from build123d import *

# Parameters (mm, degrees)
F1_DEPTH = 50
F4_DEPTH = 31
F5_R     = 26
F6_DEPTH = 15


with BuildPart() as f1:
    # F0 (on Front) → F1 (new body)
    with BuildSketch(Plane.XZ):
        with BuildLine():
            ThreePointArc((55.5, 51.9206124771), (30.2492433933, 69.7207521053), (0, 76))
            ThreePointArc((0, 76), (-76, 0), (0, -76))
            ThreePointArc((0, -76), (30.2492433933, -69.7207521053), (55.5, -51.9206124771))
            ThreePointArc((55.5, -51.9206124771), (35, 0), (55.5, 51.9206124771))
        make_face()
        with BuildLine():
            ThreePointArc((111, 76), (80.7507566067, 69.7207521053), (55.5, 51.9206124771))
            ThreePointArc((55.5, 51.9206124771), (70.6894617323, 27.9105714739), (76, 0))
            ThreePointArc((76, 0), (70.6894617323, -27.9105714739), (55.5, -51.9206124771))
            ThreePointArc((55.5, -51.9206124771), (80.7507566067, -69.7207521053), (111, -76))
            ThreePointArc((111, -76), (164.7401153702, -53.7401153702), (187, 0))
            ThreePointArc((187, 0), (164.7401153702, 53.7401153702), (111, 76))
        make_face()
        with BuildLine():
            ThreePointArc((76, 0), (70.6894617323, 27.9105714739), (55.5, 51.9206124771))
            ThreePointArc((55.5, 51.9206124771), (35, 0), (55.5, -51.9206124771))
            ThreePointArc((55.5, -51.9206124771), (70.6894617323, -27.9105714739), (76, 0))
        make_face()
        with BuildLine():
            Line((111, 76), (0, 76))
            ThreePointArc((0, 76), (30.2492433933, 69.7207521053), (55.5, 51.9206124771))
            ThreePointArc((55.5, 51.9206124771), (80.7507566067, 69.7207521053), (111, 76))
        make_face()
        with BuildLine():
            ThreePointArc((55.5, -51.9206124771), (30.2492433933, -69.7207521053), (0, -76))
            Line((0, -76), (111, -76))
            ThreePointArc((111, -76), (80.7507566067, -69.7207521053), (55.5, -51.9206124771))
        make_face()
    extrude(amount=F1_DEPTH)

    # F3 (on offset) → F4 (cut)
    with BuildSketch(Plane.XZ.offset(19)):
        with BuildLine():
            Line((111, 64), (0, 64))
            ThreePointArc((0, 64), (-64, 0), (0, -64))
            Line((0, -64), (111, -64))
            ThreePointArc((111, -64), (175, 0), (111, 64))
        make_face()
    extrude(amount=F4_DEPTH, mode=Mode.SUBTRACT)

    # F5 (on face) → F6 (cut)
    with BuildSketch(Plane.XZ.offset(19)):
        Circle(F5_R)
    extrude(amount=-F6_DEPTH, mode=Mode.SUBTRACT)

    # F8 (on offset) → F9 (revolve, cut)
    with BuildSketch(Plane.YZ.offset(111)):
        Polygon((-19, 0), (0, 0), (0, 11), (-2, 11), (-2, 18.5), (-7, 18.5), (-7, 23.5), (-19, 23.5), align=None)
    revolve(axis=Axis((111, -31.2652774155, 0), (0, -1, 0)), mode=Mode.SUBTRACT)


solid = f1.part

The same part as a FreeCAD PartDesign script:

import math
import FreeCAD as App
import Part
import Sketcher

V = App.Vector
Q = App.Units.Quantity


def add_polygon(sketch, points):
    """Adds a closed chain of lines whose ends are joined by coincident constraints."""
    first, n = sketch.GeometryCount, len(points)
    for a, b in zip(points, points[1:] + points[:1]):
        sketch.addGeometry(Part.LineSegment(App.Vector(*a, 0), App.Vector(*b, 0)), False)
    for i in range(n):
        sketch.addConstraint(Sketcher.Constraint("Coincident", first + i, 2, first + (i + 1) % n, 1))

doc = App.newDocument("Part")
body = doc.addObject("PartDesign::Body", "Body")

# Sketch on XZ plane
sketch1 = doc.addObject("Sketcher::SketchObject", "Sketch")
body.addObject(sketch1)
sketch1.AttachmentSupport = (doc.XZ_Plane, [""])
sketch1.MapMode = "FlatFace"
sketch1.addGeometry([
    Part.ArcOfCircle(Part.Circle(V(0, 0, 0), V(0, 0, 1), 76), math.radians(90), math.radians(270)),  # 0
    Part.LineSegment(V(0, -76, 0), V(111, -76, 0)),  # 1
    Part.ArcOfCircle(Part.Circle(V(111, 0, 0), V(0, 0, 1), 76), math.radians(-90), math.radians(0)),  # 2
    Part.ArcOfCircle(Part.Circle(V(111, 0, 0), V(0, 0, 1), 76), math.radians(0), math.radians(90)),  # 3
    Part.LineSegment(V(111, 76, 0), V(0, 76, 0)),  # 4
], False)
sketch1.addConstraint([
    Sketcher.Constraint("Tangent", 0, 2, 1, 1),
    Sketcher.Constraint("Tangent", 1, 2, 2, 1),
    Sketcher.Constraint("Tangent", 2, 2, 3, 1),
    Sketcher.Constraint("Tangent", 3, 2, 4, 1),
    Sketcher.Constraint("Tangent", 4, 2, 0, 1),
    Sketcher.Constraint("Horizontal", 1),
    Sketcher.Constraint("Horizontal", 4),
    Sketcher.Constraint("Coincident", 0, 3, -1, 1),
    Sketcher.Constraint("Equal", 0, 2),
    Sketcher.Constraint("PointOnObject", 2, 2, -1),
    Sketcher.Constraint("Radius", 0, Q("76 mm")),
    Sketcher.Constraint("DistanceX", 1, 1, 1, 2, Q("111 mm")),
])
pad1 = doc.addObject("PartDesign::Pad", "Pad")
body.addObject(pad1)
pad1.Profile = sketch1
pad1.Length = 50

# Sketch on XZ plane
sketch2 = doc.addObject("Sketcher::SketchObject", "Sketch001")
body.addObject(sketch2)
sketch2.AttachmentSupport = (doc.XZ_Plane, [""])
sketch2.MapMode = "FlatFace"
sketch2.AttachmentOffset = App.Placement(V(0, 0, 19), App.Rotation())
sketch2.addGeometry([
    Part.LineSegment(V(111, 64, 0), V(0, 64, 0)),
    Part.ArcOfCircle(Part.Circle(V(0, 0, 0), V(0, 0, 1), 64), math.radians(90), math.radians(270)),
    Part.LineSegment(V(0, -64, 0), V(111, -64, 0)),
    Part.ArcOfCircle(Part.Circle(V(111, 0, 0), V(0, 0, 1), 64), math.radians(-90), math.radians(90)),
], False)
sketch2.addConstraint([
    Sketcher.Constraint("Tangent", 0, 2, 1, 1),
    Sketcher.Constraint("Tangent", 1, 2, 2, 1),
    Sketcher.Constraint("Tangent", 2, 2, 3, 1),
    Sketcher.Constraint("Tangent", 3, 2, 0, 1),
    Sketcher.Constraint("Horizontal", 0),
    Sketcher.Constraint("Horizontal", 2),
    Sketcher.Constraint("Coincident", 1, 3, -1, 1),
    Sketcher.Constraint("Radius", 1, Q("64 mm")),
    Sketcher.Constraint("DistanceX", 0, 2, 0, 1, Q("111 mm")),
])
pocket1 = doc.addObject("PartDesign::Pocket", "Pocket")
body.addObject(pocket1)
pocket1.Profile = sketch2
pocket1.Length = 31
pocket1.Reversed = True

# Sketch on XZ plane
sketch3 = doc.addObject("Sketcher::SketchObject", "Sketch002")
body.addObject(sketch3)
sketch3.AttachmentSupport = (doc.XZ_Plane, [""])
sketch3.MapMode = "FlatFace"
sketch3.AttachmentOffset = App.Placement(V(0, 0, 19), App.Rotation())
sketch3.addGeometry(Part.Circle(V(0, 0, 0), V(0, 0, 1), 26), False)
sketch3.addConstraint([
    Sketcher.Constraint("Coincident", 0, 3, -1, 1),
    Sketcher.Constraint("Diameter", 0, Q("52 mm")),
])
pocket2 = doc.addObject("PartDesign::Pocket", "Pocket001")
body.addObject(pocket2)
pocket2.Profile = sketch3
pocket2.Length = 15

# Sketch on YZ plane
sketch4 = doc.addObject("Sketcher::SketchObject", "Sketch003")
body.addObject(sketch4)
sketch4.AttachmentSupport = (doc.YZ_Plane, [""])
sketch4.MapMode = "FlatFace"
sketch4.AttachmentOffset = App.Placement(V(0, 0, 111), App.Rotation())
add_polygon(sketch4, [(-19, 0), (0, 0), (0, 11), (-2, 11), (-2, 18.5), (-7, 18.5), (-7, 23.5), (-19, 23.5)])  # lines 0-7
sketch4.addConstraint([
    Sketcher.Constraint("Horizontal", 0),
    Sketcher.Constraint("Vertical", 1),
    Sketcher.Constraint("Horizontal", 2),
    Sketcher.Constraint("Vertical", 3),
    Sketcher.Constraint("Horizontal", 4),
    Sketcher.Constraint("Vertical", 5),
    Sketcher.Constraint("Horizontal", 6),
    Sketcher.Constraint("Vertical", 7),
    Sketcher.Constraint("Coincident", 0, 2, -1, 1),
    Sketcher.Constraint("Equal", 4, 5),
    Sketcher.Constraint("DistanceX", 0, 1, 0, 2, Q("19 mm")),
    Sketcher.Constraint("DistanceX", 2, 2, 2, 1, Q("2 mm")),
    Sketcher.Constraint("DistanceX", 4, 2, 4, 1, Q("5 mm")),
    Sketcher.Constraint("DistanceY", 1, 1, 1, 2, Q("11 mm")),
    Sketcher.Constraint("DistanceY", 3, 1, 3, 2, Q("7.5 mm")),
])
groove = doc.addObject("PartDesign::Groove", "Groove")
body.addObject(groove)
groove.Profile = sketch4
groove.ReferenceAxis = (sketch4, ["H_Axis"])
groove.Angle = 360

doc.recompute()
